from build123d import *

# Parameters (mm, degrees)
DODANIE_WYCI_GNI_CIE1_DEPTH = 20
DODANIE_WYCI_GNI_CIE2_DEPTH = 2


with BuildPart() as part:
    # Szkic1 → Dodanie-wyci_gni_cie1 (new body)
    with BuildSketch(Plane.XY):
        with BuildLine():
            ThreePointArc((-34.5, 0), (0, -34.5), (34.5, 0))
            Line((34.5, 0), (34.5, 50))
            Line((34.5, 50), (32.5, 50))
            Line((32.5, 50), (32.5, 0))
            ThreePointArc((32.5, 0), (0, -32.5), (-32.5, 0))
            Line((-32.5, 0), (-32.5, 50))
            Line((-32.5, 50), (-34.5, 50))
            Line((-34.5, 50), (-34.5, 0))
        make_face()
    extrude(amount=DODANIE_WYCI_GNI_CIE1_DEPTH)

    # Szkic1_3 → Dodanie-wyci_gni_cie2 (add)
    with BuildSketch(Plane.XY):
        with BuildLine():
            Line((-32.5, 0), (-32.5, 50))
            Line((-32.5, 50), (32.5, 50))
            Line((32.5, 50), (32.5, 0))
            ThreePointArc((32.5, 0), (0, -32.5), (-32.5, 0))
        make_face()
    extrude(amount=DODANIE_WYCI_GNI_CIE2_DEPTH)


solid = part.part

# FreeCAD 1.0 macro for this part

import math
import FreeCAD as App
import Part
import Sketcher
Q = App.Units.Quantity

doc = App.newDocument("Part")
body = doc.addObject("PartDesign::Body", "Body")

# Sketch on XY plane
sketch1 = doc.addObject("Sketcher::SketchObject", "Sketch")
body.addObject(sketch1)
sketch1.AttachmentSupport = (doc.XY_Plane, [""])
sketch1.MapMode = "FlatFace"
sketch1.addGeometry([
    Part.ArcOfCircle(Part.Circle(App.Vector(0, 0, 0), App.Vector(0, 0, 1), 34.5), math.radians(180), math.radians(360)),  # 0
    Part.LineSegment(App.Vector(34.5, 0, 0), App.Vector(34.5, 50, 0)),  # 1
    Part.LineSegment(App.Vector(34.5, 50, 0), App.Vector(32.5, 50, 0)),  # 2
    Part.LineSegment(App.Vector(32.5, 50, 0), App.Vector(32.5, 0, 0)),  # 3
    Part.ArcOfCircle(Part.Circle(App.Vector(0, 0, 0), App.Vector(0, 0, 1), 32.5), math.radians(180), math.radians(360)),  # 4
    Part.LineSegment(App.Vector(-32.5, 0, 0), App.Vector(-32.5, 50, 0)),  # 5
    Part.LineSegment(App.Vector(-32.5, 50, 0), App.Vector(-34.5, 50, 0)),  # 6
    Part.LineSegment(App.Vector(-34.5, 50, 0), App.Vector(-34.5, 0, 0)),  # 7
], False)
sketch1.addConstraint([
    Sketcher.Constraint("Tangent", 0, 2, 1, 1),
    Sketcher.Constraint("Coincident", 1, 2, 2, 1),
    Sketcher.Constraint("Coincident", 2, 2, 3, 1),
    Sketcher.Constraint("Tangent", 3, 2, 4, 2),
    Sketcher.Constraint("Tangent", 4, 1, 5, 1),
    Sketcher.Constraint("Coincident", 5, 2, 6, 1),
    Sketcher.Constraint("Coincident", 6, 2, 7, 1),
    Sketcher.Constraint("Tangent", 7, 2, 0, 1),
    Sketcher.Constraint("Vertical", 1),
    Sketcher.Constraint("Horizontal", 2),
    Sketcher.Constraint("Vertical", 3),
    Sketcher.Constraint("Vertical", 5),
    Sketcher.Constraint("Horizontal", 6),
    Sketcher.Constraint("Vertical", 7),
    Sketcher.Constraint("Coincident", 0, 3, -1, 1),
    Sketcher.Constraint("Coincident", 4, 3, -1, 1),
    Sketcher.Constraint("Horizontal", 2, 2, 5, 2),
    Sketcher.Constraint("Radius", 0, Q("34.5 mm")),
    Sketcher.Constraint("Radius", 4, Q("32.5 mm")),
    Sketcher.Constraint("DistanceY", 1, 1, 1, 2, Q("50 mm")),
])
pad1 = doc.addObject("PartDesign::Pad", "Pad")
body.addObject(pad1)
pad1.Profile = sketch1
pad1.Length = 20

# Sketch on XY plane
sketch2 = doc.addObject("Sketcher::SketchObject", "Sketch001")
body.addObject(sketch2)
sketch2.AttachmentSupport = (doc.XY_Plane, [""])
sketch2.MapMode = "FlatFace"
sketch2.addGeometry([
    Part.LineSegment(App.Vector(-32, 50, 0), App.Vector(-32, 0, 0)),
    Part.ArcOfCircle(Part.Circle(App.Vector(0, 0, 0), App.Vector(0, 0, 1), 32), math.radians(180), math.radians(360)),
    Part.LineSegment(App.Vector(32, 0, 0), App.Vector(32, 50, 0)),
    Part.LineSegment(App.Vector(32, 50, 0), App.Vector(-32, 50, 0)),
], False)
sketch2.addConstraint([
    Sketcher.Constraint("Tangent", 0, 2, 1, 1),
    Sketcher.Constraint("Tangent", 1, 2, 2, 1),
    Sketcher.Constraint("Coincident", 2, 2, 3, 1),
    Sketcher.Constraint("Coincident", 3, 2, 0, 1),
    Sketcher.Constraint("Vertical", 0),
    Sketcher.Constraint("Vertical", 2),
    Sketcher.Constraint("Horizontal", 3),
    Sketcher.Constraint("Coincident", 1, 3, -1, 1),
    Sketcher.Constraint("Radius", 1, Q("32.5 mm")),
    Sketcher.Constraint("DistanceY", 0, 2, 0, 1, Q("50 mm")),
])
pad2 = doc.addObject("PartDesign::Pad", "Pad001")
body.addObject(pad2)
pad2.Profile = sketch2
pad2.Length = 2

doc.recompute()
